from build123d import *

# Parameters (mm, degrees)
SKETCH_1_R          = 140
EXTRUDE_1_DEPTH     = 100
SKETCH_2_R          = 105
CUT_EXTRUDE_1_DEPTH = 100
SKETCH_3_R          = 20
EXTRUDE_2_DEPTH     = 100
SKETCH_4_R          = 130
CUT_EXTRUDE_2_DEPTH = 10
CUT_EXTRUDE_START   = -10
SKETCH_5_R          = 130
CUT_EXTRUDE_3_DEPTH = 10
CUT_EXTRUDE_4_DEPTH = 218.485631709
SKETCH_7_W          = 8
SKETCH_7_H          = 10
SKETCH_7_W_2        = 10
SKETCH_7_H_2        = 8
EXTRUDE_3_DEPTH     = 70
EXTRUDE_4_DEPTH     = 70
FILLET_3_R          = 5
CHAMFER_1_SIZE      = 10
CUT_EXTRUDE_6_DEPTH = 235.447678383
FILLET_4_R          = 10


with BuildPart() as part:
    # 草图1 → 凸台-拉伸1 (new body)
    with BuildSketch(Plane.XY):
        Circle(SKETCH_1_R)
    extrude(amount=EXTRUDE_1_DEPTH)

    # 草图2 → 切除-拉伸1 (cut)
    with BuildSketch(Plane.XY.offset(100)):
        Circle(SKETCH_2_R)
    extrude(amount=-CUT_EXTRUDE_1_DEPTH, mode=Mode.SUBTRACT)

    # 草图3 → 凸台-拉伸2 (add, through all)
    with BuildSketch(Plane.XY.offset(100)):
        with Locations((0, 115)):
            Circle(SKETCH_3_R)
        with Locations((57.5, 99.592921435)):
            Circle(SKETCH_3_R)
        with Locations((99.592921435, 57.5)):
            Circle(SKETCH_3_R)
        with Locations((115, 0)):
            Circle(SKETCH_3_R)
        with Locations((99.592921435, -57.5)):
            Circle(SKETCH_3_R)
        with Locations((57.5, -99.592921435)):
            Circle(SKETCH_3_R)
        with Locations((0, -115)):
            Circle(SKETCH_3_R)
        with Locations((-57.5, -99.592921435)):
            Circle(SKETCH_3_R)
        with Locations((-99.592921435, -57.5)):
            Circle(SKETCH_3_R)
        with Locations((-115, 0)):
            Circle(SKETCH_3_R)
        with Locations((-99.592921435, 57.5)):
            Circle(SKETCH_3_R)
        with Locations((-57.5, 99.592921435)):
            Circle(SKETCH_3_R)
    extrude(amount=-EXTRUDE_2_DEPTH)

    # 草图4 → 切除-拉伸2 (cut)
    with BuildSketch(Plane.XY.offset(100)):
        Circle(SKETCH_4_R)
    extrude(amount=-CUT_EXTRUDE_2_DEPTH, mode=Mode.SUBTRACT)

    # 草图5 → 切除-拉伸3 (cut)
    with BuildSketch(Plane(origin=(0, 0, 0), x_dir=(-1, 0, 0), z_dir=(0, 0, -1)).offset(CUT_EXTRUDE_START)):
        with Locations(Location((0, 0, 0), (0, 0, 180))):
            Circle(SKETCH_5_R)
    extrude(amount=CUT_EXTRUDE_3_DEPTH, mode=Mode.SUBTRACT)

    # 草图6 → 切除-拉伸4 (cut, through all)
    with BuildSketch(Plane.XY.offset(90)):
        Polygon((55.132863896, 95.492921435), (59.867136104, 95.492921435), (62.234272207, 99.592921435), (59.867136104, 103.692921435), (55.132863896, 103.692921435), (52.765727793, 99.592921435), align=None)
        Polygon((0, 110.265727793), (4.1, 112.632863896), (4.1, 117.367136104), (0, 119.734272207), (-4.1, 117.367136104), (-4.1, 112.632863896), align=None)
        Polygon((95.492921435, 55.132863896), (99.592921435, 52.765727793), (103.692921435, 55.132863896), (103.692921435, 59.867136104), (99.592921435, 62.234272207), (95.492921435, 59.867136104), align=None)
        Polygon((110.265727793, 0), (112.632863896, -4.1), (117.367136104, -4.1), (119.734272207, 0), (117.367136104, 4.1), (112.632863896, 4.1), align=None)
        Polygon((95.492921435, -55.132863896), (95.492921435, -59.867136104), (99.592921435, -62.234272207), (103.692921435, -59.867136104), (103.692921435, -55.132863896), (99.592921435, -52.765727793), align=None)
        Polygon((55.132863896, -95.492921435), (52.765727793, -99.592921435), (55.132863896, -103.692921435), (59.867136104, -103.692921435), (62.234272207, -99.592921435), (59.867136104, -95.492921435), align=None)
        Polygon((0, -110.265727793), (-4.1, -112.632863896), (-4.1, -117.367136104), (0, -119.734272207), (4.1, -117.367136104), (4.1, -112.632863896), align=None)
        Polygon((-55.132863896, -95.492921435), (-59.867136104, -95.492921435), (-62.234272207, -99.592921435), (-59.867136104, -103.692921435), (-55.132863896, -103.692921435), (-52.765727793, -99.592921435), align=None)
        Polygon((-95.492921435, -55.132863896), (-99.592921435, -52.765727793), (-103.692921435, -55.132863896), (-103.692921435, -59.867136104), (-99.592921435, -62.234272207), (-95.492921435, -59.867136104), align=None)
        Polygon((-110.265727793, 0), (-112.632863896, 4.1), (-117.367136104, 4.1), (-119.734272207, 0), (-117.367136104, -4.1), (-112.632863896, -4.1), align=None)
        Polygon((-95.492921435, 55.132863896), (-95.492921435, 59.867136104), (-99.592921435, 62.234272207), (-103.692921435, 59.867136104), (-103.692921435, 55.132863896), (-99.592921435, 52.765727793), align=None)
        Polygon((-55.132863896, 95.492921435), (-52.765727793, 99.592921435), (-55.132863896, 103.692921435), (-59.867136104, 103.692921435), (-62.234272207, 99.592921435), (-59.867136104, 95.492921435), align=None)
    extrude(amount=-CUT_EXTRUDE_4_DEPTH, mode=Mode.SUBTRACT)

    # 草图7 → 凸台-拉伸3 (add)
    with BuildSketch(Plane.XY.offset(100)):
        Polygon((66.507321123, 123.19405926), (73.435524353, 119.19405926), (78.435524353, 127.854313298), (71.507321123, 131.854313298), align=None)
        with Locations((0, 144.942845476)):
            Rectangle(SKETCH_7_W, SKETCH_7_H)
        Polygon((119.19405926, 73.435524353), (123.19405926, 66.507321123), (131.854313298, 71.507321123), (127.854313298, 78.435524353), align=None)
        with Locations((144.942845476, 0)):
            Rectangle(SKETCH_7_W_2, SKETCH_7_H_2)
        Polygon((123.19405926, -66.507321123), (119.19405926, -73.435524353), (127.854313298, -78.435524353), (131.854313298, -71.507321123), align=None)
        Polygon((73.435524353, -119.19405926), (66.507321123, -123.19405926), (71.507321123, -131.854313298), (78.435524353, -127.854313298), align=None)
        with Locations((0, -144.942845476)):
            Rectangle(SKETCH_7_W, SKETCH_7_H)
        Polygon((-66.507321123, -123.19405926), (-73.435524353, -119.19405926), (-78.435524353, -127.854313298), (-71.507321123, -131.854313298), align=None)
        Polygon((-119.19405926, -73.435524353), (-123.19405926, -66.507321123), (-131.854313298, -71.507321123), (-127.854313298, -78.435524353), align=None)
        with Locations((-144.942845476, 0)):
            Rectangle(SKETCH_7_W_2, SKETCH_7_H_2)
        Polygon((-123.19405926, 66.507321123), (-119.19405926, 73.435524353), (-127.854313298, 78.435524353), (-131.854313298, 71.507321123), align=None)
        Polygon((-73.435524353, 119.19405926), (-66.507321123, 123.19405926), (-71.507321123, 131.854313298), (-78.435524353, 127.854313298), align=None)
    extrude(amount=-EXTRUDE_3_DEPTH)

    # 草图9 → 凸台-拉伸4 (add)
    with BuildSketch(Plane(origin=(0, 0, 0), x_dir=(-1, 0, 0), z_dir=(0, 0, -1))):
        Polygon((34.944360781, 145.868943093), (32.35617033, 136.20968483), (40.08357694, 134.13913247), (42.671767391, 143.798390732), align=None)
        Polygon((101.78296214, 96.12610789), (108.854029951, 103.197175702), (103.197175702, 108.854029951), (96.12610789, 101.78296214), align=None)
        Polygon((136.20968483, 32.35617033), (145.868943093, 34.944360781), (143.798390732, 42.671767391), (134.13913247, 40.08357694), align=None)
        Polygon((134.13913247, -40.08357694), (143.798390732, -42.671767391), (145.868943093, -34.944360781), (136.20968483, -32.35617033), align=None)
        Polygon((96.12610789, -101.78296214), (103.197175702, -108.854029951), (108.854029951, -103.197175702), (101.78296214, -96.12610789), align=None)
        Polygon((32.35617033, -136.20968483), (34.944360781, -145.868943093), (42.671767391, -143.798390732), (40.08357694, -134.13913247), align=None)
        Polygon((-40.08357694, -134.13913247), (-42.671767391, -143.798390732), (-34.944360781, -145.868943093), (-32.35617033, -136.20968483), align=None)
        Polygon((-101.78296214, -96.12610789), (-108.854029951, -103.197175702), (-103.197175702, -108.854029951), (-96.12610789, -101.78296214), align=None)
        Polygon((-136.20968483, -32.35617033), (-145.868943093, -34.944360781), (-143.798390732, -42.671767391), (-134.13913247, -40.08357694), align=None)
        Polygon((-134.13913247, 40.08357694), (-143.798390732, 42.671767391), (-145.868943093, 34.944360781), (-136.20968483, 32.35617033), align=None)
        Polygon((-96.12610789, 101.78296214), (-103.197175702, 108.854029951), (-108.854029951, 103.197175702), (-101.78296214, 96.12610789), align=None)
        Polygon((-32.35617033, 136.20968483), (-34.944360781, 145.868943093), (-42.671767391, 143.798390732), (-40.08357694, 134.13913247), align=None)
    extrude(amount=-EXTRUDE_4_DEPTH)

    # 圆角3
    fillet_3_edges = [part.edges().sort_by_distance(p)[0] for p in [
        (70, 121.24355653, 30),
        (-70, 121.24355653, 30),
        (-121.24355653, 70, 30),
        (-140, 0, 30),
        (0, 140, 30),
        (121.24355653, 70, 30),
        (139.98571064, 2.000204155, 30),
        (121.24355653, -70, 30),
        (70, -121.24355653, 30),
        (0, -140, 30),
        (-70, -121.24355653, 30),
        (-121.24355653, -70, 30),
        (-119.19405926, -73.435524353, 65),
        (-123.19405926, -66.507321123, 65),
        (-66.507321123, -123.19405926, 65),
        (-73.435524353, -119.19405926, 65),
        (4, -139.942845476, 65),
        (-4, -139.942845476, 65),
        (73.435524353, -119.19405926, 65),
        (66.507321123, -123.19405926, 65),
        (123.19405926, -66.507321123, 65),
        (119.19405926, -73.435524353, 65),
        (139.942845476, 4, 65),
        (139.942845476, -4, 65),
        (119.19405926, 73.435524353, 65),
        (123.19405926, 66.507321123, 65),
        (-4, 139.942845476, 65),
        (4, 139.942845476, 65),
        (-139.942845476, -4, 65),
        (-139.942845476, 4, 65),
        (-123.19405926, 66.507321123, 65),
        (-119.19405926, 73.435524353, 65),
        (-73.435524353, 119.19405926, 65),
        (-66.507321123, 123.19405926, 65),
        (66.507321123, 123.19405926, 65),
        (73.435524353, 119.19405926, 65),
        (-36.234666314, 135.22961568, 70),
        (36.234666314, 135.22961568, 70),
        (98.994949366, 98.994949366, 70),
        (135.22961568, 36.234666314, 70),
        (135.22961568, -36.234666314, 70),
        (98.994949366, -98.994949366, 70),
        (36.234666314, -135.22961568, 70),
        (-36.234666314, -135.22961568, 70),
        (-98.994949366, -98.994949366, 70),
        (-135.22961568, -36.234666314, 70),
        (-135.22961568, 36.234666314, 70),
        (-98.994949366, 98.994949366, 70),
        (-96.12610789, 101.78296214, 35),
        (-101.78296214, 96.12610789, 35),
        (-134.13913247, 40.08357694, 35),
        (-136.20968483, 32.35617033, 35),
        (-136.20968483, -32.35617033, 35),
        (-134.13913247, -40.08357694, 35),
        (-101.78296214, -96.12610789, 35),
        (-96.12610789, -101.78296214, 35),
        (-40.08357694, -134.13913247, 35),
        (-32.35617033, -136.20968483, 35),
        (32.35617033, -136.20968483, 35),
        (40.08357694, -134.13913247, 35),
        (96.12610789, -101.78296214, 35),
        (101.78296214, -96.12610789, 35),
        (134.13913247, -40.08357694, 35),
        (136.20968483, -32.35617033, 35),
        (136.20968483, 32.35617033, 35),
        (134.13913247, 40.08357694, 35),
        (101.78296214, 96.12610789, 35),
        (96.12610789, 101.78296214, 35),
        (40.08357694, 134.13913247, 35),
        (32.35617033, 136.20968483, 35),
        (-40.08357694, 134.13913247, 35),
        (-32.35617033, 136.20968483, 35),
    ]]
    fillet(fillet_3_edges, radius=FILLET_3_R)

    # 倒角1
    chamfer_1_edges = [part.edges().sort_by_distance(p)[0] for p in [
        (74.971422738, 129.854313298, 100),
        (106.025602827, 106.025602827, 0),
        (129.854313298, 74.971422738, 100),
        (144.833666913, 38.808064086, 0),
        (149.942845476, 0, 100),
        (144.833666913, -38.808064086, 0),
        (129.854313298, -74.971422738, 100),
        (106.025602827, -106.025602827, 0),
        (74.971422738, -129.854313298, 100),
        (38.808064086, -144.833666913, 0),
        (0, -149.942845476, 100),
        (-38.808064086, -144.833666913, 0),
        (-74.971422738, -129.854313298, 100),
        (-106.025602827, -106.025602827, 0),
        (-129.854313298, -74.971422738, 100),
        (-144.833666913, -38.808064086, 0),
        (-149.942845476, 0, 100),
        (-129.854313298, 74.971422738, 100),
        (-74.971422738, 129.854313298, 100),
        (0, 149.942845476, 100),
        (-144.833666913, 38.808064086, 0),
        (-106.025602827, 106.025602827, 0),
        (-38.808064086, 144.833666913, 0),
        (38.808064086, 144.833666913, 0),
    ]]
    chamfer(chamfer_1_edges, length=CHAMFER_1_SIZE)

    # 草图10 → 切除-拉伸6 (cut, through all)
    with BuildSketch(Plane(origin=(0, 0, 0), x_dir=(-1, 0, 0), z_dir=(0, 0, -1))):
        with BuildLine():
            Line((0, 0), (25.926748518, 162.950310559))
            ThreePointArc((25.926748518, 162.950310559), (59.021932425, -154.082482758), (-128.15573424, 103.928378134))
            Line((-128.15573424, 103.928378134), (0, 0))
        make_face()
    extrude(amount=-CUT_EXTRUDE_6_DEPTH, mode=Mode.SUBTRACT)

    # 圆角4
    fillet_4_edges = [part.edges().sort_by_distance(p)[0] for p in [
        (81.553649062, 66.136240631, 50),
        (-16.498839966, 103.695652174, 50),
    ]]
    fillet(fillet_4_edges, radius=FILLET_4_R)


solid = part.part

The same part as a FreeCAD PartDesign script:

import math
import FreeCAD as App
import Part
import Sketcher
Q = App.Units.Quantity


def edges_at(feature, points):
    """Names of the edges that pass closest to the given points."""
    edges = feature.Shape.Edges
    near = lambda p: min(range(len(edges)), key=lambda i: edges[i].distToShape(Part.Vertex(*p))[0])
    return sorted({f"Edge{near(p) + 1}" for p in points})


def add_polygon(sketch, points):
    """Adds a closed chain of lines whose ends are joined by coincident constraints."""
    first, n = sketch.GeometryCount, len(points)
    for a, b in zip(points, points[1:] + points[:1]):
        sketch.addGeometry(Part.LineSegment(App.Vector(*a, 0), App.Vector(*b, 0)), False)
    for i in range(n):
        sketch.addConstraint(Sketcher.Constraint("Coincident", first + i, 2, first + (i + 1) % n, 1))

doc = App.newDocument("Part")
body = doc.addObject("PartDesign::Body", "Body")

sketch1 = body.newObject("Sketcher::SketchObject", "Sketch")
sketch1.AttachmentSupport = (doc.getObject("XY_Plane"), [""])
sketch1.MapMode = "FlatFace"
sketch1.addGeometry(Part.Circle(App.Vector(0, 0, 0), App.Vector(0, 0, 1), 140), False)
sketch1.addConstraint([
    Sketcher.Constraint("Coincident", 0, 3, -1, 1),
    Sketcher.Constraint("Diameter", 0, Q("280 mm")),
])
pad1 = body.newObject("PartDesign::Pad", "Pad")
pad1.Profile = sketch1
pad1.Length = 100

sketch2 = body.newObject("Sketcher::SketchObject", "Sketch001")
sketch2.AttachmentSupport = (doc.getObject("XY_Plane"), [""])
sketch2.MapMode = "FlatFace"
sketch2.AttachmentOffset = App.Placement(App.Vector(0, 0, 100), App.Rotation())
sketch2.addGeometry(Part.Circle(App.Vector(0, 0, 0), App.Vector(0, 0, 1), 105), False)
sketch2.addConstraint([
    Sketcher.Constraint("Coincident", 0, 3, -1, 1),
    Sketcher.Constraint("Diameter", 0, Q("210 mm")),
])
pocket1 = body.newObject("PartDesign::Pocket", "Pocket")
pocket1.Profile = sketch2
pocket1.Length = 100

sketch3 = body.newObject("Sketcher::SketchObject", "Sketch002")
sketch3.AttachmentSupport = (doc.getObject("XY_Plane"), [""])
sketch3.MapMode = "FlatFace"
sketch3.AttachmentOffset = App.Placement(App.Vector(0, 0, 100), App.Rotation())
sketch3.addGeometry([
    Part.Circle(App.Vector(0, 115, 0), App.Vector(0, 0, 1), 20),
    Part.Circle(App.Vector(57.5, 99.592921, 0), App.Vector(0, 0, 1), 20),
    Part.Circle(App.Vector(99.592921, 57.5, 0), App.Vector(0, 0, 1), 20),
    Part.Circle(App.Vector(115, 0, 0), App.Vector(0, 0, 1), 20),
    Part.Circle(App.Vector(99.592921, -57.5, 0), App.Vector(0, 0, 1), 20),
    Part.Circle(App.Vector(57.5, -99.592921, 0), App.Vector(0, 0, 1), 20),
    Part.Circle(App.Vector(0, -115, 0), App.Vector(0, 0, 1), 20),
    Part.Circle(App.Vector(-57.5, -99.592921, 0), App.Vector(0, 0, 1), 20),
    Part.Circle(App.Vector(-99.592921, -57.5, 0), App.Vector(0, 0, 1), 20),
    Part.Circle(App.Vector(-115, 0, 0), App.Vector(0, 0, 1), 20),
    Part.Circle(App.Vector(-99.592921, 57.5, 0), App.Vector(0, 0, 1), 20),
    Part.Circle(App.Vector(-57.5, 99.592921, 0), App.Vector(0, 0, 1), 20),
], False)
sketch3.addConstraint([
    Sketcher.Constraint("Equal", 0, 1),
    Sketcher.Constraint("Equal", 1, 2),
    Sketcher.Constraint("Equal", 2, 3),
    Sketcher.Constraint("Equal", 3, 4),
    Sketcher.Constraint("Equal", 4, 5),
    Sketcher.Constraint("Equal", 5, 6),
    Sketcher.Constraint("Equal", 6, 7),
    Sketcher.Constraint("Equal", 7, 8),
    Sketcher.Constraint("Equal", 8, 9),
    Sketcher.Constraint("Equal", 9, 10),
    Sketcher.Constraint("Equal", 10, 11),
    Sketcher.Constraint("Symmetric", 0, 3, 6, 3, -1, 1),
    Sketcher.Constraint("Symmetric", 1, 3, 7, 3, -1, 1),
    Sketcher.Constraint("Symmetric", 2, 3, 8, 3, -1, 1),
    Sketcher.Constraint("Symmetric", 3, 3, 9, 3, -1, 1),
    Sketcher.Constraint("Symmetric", 4, 3, 10, 3, -1, 1),
    Sketcher.Constraint("Symmetric", 5, 3, 11, 3, -1, 1),
    Sketcher.Constraint("Symmetric", 5, 3, 7, 3, -2),
    Sketcher.Constraint("Symmetric", 4, 3, 8, 3, -2),
    Sketcher.Constraint("PointOnObject", 0, 3, -2),
    Sketcher.Constraint("PointOnObject", 3, 3, -1),
    Sketcher.Constraint("Diameter", 0, Q("40 mm")),
    Sketcher.Constraint("DistanceY", -1, 1, 0, 3, Q("115 mm")),
    Sketcher.Constraint("DistanceX", -1, 1, 3, 3, Q("115 mm")),
    Sketcher.Constraint("DistanceY", 4, 3, 2, 3, Q("115 mm")),
    Sketcher.Constraint("DistanceX", 7, 3, 5, 3, Q("115 mm")),
    Sketcher.Constraint("DistanceY", -1, 1, 1, 3, Q("99.592921 mm")),
    Sketcher.Constraint("DistanceX", -1, 1, 2, 3, Q("99.592921 mm")),
])
pad2 = body.newObject("PartDesign::Pad", "Pad001")
pad2.Profile = sketch3
pad2.Length = 100
pad2.Reversed = True

sketch4 = body.newObject("Sketcher::SketchObject", "Sketch003")
sketch4.AttachmentSupport = (doc.getObject("XY_Plane"), [""])
sketch4.MapMode = "FlatFace"
sketch4.AttachmentOffset = App.Placement(App.Vector(0, 0, 100), App.Rotation())
sketch4.addGeometry(Part.Circle(App.Vector(0, 0, 0), App.Vector(0, 0, 1), 130), False)
sketch4.addConstraint([
    Sketcher.Constraint("Coincident", 0, 3, -1, 1),
    Sketcher.Constraint("Diameter", 0, Q("260 mm")),
])
pocket2 = body.newObject("PartDesign::Pocket", "Pocket001")
pocket2.Profile = sketch4
pocket2.Length = 10

sketch5 = body.newObject("Sketcher::SketchObject", "Sketch004")
sketch5.AttachmentSupport = (doc.getObject("XY_Plane"), [""])
sketch5.MapMode = "FlatFace"
sketch5.AttachmentOffset = App.Placement(App.Vector(0, 0, 10), App.Rotation())
sketch5.addGeometry(Part.Circle(App.Vector(0, 0, 0), App.Vector(0, 0, 1), 130), False)
sketch5.addConstraint([
    Sketcher.Constraint("Coincident", 0, 3, -1, 1),
    Sketcher.Constraint("Diameter", 0, Q("260 mm")),
])
pocket3 = body.newObject("PartDesign::Pocket", "Pocket002")
pocket3.Profile = sketch5
pocket3.Length = 10

sketch6 = body.newObject("Sketcher::SketchObject", "Sketch005")
sketch6.AttachmentSupport = (doc.getObject("XY_Plane"), [""])
sketch6.MapMode = "FlatFace"
sketch6.AttachmentOffset = App.Placement(App.Vector(0, 0, 90), App.Rotation())
add_polygon(sketch6, [(55.132864, 95.492921), (59.867136, 95.492921), (62.234272, 99.592921), (59.867136, 103.692921), (55.132864, 103.692921), (52.765728, 99.592921)])
add_polygon(sketch6, [(0, 110.265728), (4.1, 112.632864), (4.1, 117.367136), (0, 119.734272), (-4.1, 117.367136), (-4.1, 112.632864)])
add_polygon(sketch6, [(95.492921, 55.132864), (99.592921, 52.765728), (103.692921, 55.132864), (103.692921, 59.867136), (99.592921, 62.234272), (95.492921, 59.867136)])
add_polygon(sketch6, [(110.265728, 0), (112.632864, -4.1), (117.367136, -4.1), (119.734272, 0), (117.367136, 4.1), (112.632864, 4.1)])
add_polygon(sketch6, [(95.492921, -55.132864), (95.492921, -59.867136), (99.592921, -62.234272), (103.692921, -59.867136), (103.692921, -55.132864), (99.592921, -52.765728)])
add_polygon(sketch6, [(55.132864, -95.492921), (52.765728, -99.592921), (55.132864, -103.692921), (59.867136, -103.692921), (62.234272, -99.592921), (59.867136, -95.492921)])
add_polygon(sketch6, [(0, -110.265728), (-4.1, -112.632864), (-4.1, -117.367136), (0, -119.734272), (4.1, -117.367136), (4.1, -112.632864)])
add_polygon(sketch6, [(-55.132864, -95.492921), (-59.867136, -95.492921), (-62.234272, -99.592921), (-59.867136, -103.692921), (-55.132864, -103.692921), (-52.765728, -99.592921)])
add_polygon(sketch6, [(-95.492921, -55.132864), (-99.592921, -52.765728), (-103.692921, -55.132864), (-103.692921, -59.867136), (-99.592921, -62.234272), (-95.492921, -59.867136)])
add_polygon(sketch6, [(-110.265728, 0), (-112.632864, 4.1), (-117.367136, 4.1), (-119.734272, 0), (-117.367136, -4.1), (-112.632864, -4.1)])
add_polygon(sketch6, [(-95.492921, 55.132864), (-95.492921, 59.867136), (-99.592921, 62.234272), (-103.692921, 59.867136), (-103.692921, 55.132864), (-99.592921, 52.765728)])
add_polygon(sketch6, [(-55.132864, 95.492921), (-52.765728, 99.592921), (-55.132864, 103.692921), (-59.867136, 103.692921), (-62.234272, 99.592921), (-59.867136, 95.492921)])
sketch6.addConstraint([
    Sketcher.Constraint("Horizontal", 0),
    Sketcher.Constraint("Horizontal", 3),
    Sketcher.Constraint("Vertical", 7),
    Sketcher.Constraint("Vertical", 10),
    Sketcher.Constraint("Vertical", 14),
    Sketcher.Constraint("Vertical", 17),
    Sketcher.Constraint("Horizontal", 19),
    Sketcher.Constraint("Horizontal", 22),
    Sketcher.Constraint("Vertical", 24),
    Sketcher.Constraint("Vertical", 27),
    Sketcher.Constraint("Horizontal", 32),
    Sketcher.Constraint("Horizontal", 35),
    Sketcher.Constraint("Vertical", 37),
    Sketcher.Constraint("Vertical", 40),
    Sketcher.Constraint("Horizontal", 42),
    Sketcher.Constraint("Horizontal", 45),
    Sketcher.Constraint("Vertical", 50),
    Sketcher.Constraint("Vertical", 53),
    Sketcher.Constraint("Horizontal", 55),
    Sketcher.Constraint("Horizontal", 58),
    Sketcher.Constraint("Vertical", 60),
    Sketcher.Constraint("Vertical", 63),
    Sketcher.Constraint("Horizontal", 68),
    Sketcher.Constraint("Horizontal", 71),
    Sketcher.Constraint("Symmetric", 6, 2, 36, 2, -1, 1),
    Sketcher.Constraint("Symmetric", 8, 2, 38, 2, -1, 1),
    Sketcher.Constraint("Symmetric", 9, 2, 39, 2, -1, 1),
    Sketcher.Constraint("Symmetric", 11, 2, 41, 2, -1, 1),
    Sketcher.Constraint("Symmetric", 0, 2, 42, 2, -1, 1),
    Sketcher.Constraint("Symmetric", 1, 2, 43, 2, -1, 1),
    Sketcher.Constraint("Symmetric", 2, 2, 44, 2, -1, 1),
    Sketcher.Constraint("Symmetric", 4, 2, 46, 2, -1, 1),
    Sketcher.Constraint("Symmetric", 12, 2, 48, 2, -1, 1),
    Sketcher.Constraint("Symmetric", 13, 2, 49, 2, -1, 1),
    Sketcher.Constraint("Symmetric", 15, 2, 51, 2, -1, 1),
    Sketcher.Constraint("Symmetric", 16, 2, 52, 2, -1, 1),
    Sketcher.Constraint("Symmetric", 18, 2, 54, 2, -1, 1),
    Sketcher.Constraint("Symmetric", 20, 2, 56, 2, -1, 1),
    Sketcher.Constraint("Symmetric", 21, 2, 57, 2, -1, 1),
    Sketcher.Constraint("Symmetric", 23, 2, 59, 2, -1, 1),
    Sketcher.Constraint("Symmetric", 24, 2, 60, 2, -1, 1),
    Sketcher.Constraint("Symmetric", 25, 2, 61, 2, -1, 1),
    Sketcher.Constraint("Symmetric", 26, 2, 62, 2, -1, 1),
    Sketcher.Constraint("Symmetric", 28, 2, 64, 2, -1, 1),
    Sketcher.Constraint("Symmetric", 30, 2, 66, 2, -1, 1),
    Sketcher.Constraint("Symmetric", 31, 2, 67, 2, -1, 1),
    Sketcher.Constraint("Symmetric", 33, 2, 69, 2, -1, 1),
    Sketcher.Constraint("Symmetric", 34, 2, 70, 2, -1, 1),
    Sketcher.Constraint("Symmetric", 7, 2, 9, 2, -2),
    Sketcher.Constraint("Symmetric", 34, 2, 42, 2, -2),
    Sketcher.Constraint("Symmetric", 33, 2, 43, 2, -2),
    Sketcher.Constraint("Symmetric", 32, 2, 44, 2, -2),
    Sketcher.Constraint("Symmetric", 30, 2, 46, 2, -2),
    Sketcher.Constraint("Symmetric", 28, 2, 48, 2, -2),
    Sketcher.Constraint("Symmetric", 27, 2, 49, 2, -2),
    Sketcher.Constraint("Symmetric", 25, 2, 51, 2, -2),
    Sketcher.Constraint("Symmetric", 24, 2, 52, 2, -2),
    Sketcher.Constraint("Symmetric", 22, 2, 54, 2, -2),
    Sketcher.Constraint("PointOnObject", 8, 2, -2),
    Sketcher.Constraint("PointOnObject", 11, 2, -2),
    Sketcher.Constraint("PointOnObject", 20, 2, -1),
    Sketcher.Constraint("PointOnObject", 23, 2, -1),
    Sketcher.Constraint("Parallel", 1, 4),
    Sketcher.Constraint("Parallel", 2, 5),
    Sketcher.Constraint("Perpendicular", 5, 6),
    Sketcher.Constraint("Perpendicular", 4, 8),
    Sketcher.Constraint("Parallel", 6, 9),
    Sketcher.Constraint("Parallel", 8, 11),
    Sketcher.Constraint("Parallel", 11, 12),
    Sketcher.Constraint("Parallel", 9, 13),
    Sketcher.Constraint("Parallel", 12, 15),
    Sketcher.Constraint("Parallel", 13, 16),
    Sketcher.Constraint("Perpendicular", 16, 18),
    Sketcher.Constraint("Perpendicular", 15, 20),
    Sketcher.Constraint("Parallel", 18, 21),
    Sketcher.Constraint("Perpendicular", 21, 26),
    Sketcher.Constraint("Parallel", 26, 29),
    Sketcher.Constraint("Perpendicular", 28, 30),
    Sketcher.Constraint("Perpendicular", 29, 31),
    Sketcher.Constraint("Perpendicular", 33, 38),
    Sketcher.Constraint("Parallel", 38, 41),
    Sketcher.Constraint("Parallel", 43, 46),
    Sketcher.Constraint("Parallel", 44, 47),
    Sketcher.Constraint("Perpendicular", 46, 48),
    Sketcher.Constraint("Parallel", 48, 51),
    Sketcher.Constraint("Perpendicular", 51, 56),
    Sketcher.Constraint("Parallel", 56, 59),
    Sketcher.Constraint("Parallel", 61, 64),
    Sketcher.Constraint("Parallel", 62, 65),
    Sketcher.Constraint("Perpendicular", 64, 66),
    Sketcher.Constraint("Parallel", 66, 69),
    Sketcher.Constraint("Horizontal", 1, 2, 4, 2),
    Sketcher.Constraint("Horizontal", 14, 2, 16, 2),
    Sketcher.Constraint("Horizontal", 13, 2, 17, 2),
    Sketcher.Constraint("Vertical", 0, 2, 2, 2),
    Sketcher.Constraint("Equal", 3, 19),
    Sketcher.Constraint("Equal", 71, 7),
    Sketcher.Constraint("Equal", 10, 14),
    Sketcher.Constraint("Equal", 5, 6),
    Sketcher.Constraint("Equal", 11, 12),
    Sketcher.Constraint("Equal", 16, 18),
    Sketcher.Constraint("Angle", 1, Q("60 deg")),
    Sketcher.Constraint("DistanceX", -1, 1, 6, 2, Q("4.1 mm")),
    Sketcher.Constraint("DistanceX", 0, 1, 0, 2, Q("4.734272 mm")),
    Sketcher.Constraint("DistanceY", -1, 1, 0, 2, Q("95.492921 mm")),
    Sketcher.Constraint("DistanceX", -1, 1, 12, 2, Q("99.592921 mm")),
    Sketcher.Constraint("DistanceX", -1, 1, 0, 2, Q("59.867136 mm")),
    Sketcher.Constraint("DistanceY", -1, 1, 6, 2, Q("112.632864 mm")),
    Sketcher.Constraint("DistanceY", -1, 1, 12, 2, Q("52.765728 mm")),
    Sketcher.Constraint("DistanceX", -1, 1, 18, 2, Q("112.632864 mm")),
])
pocket4 = body.newObject("PartDesign::Pocket", "Pocket003")
pocket4.Profile = sketch6
pocket4.Type = "ThroughAll"

sketch7 = body.newObject("Sketcher::SketchObject", "Sketch006")
sketch7.AttachmentSupport = (doc.getObject("XY_Plane"), [""])
sketch7.MapMode = "FlatFace"
sketch7.AttachmentOffset = App.Placement(App.Vector(0, 0, 100), App.Rotation())
add_polygon(sketch7, [(66.507321, 123.194059), (73.435524, 119.194059), (78.435524, 127.854313), (71.507321, 131.854313)])
add_polygon(sketch7, [(-4, 149.942845), (-4, 139.942845), (4, 139.942845), (4, 149.942845)])
add_polygon(sketch7, [(119.194059, 73.435524), (123.194059, 66.507321), (131.854313, 71.507321), (127.854313, 78.435524)])
add_polygon(sketch7, [(139.942845, 4), (139.942845, -4), (149.942845, -4), (149.942845, 4)])
add_polygon(sketch7, [(123.194059, -66.507321), (119.194059, -73.435524), (127.854313, -78.435524), (131.854313, -71.507321)])
add_polygon(sketch7, [(73.435524, -119.194059), (66.507321, -123.194059), (71.507321, -131.854313), (78.435524, -127.854313)])
add_polygon(sketch7, [(-4, -139.942845), (-4, -149.942845), (4, -149.942845), (4, -139.942845)])
add_polygon(sketch7, [(-66.507321, -123.194059), (-73.435524, -119.194059), (-78.435524, -127.854313), (-71.507321, -131.854313)])
add_polygon(sketch7, [(-119.194059, -73.435524), (-123.194059, -66.507321), (-131.854313, -71.507321), (-127.854313, -78.435524)])
add_polygon(sketch7, [(-149.942845, 4), (-149.942845, -4), (-139.942845, -4), (-139.942845, 4)])
add_polygon(sketch7, [(-123.194059, 66.507321), (-119.194059, 73.435524), (-127.854313, 78.435524), (-131.854313, 71.507321)])
add_polygon(sketch7, [(-73.435524, 119.194059), (-66.507321, 123.194059), (-71.507321, 131.854313), (-78.435524, 127.854313)])
sketch7.addConstraint([
    Sketcher.Constraint("Vertical", 4),
    Sketcher.Constraint("Horizontal", 5),
    Sketcher.Constraint("Vertical", 6),
    Sketcher.Constraint("Horizontal", 7),
    Sketcher.Constraint("Vertical", 12),
    Sketcher.Constraint("Horizontal", 13),
    Sketcher.Constraint("Vertical", 14),
    Sketcher.Constraint("Horizontal", 15),
    Sketcher.Constraint("Vertical", 24),
    Sketcher.Constraint("Horizontal", 25),
    Sketcher.Constraint("Vertical", 26),
    Sketcher.Constraint("Horizontal", 27),
    Sketcher.Constraint("Vertical", 36),
    Sketcher.Constraint("Horizontal", 37),
    Sketcher.Constraint("Vertical", 38),
    Sketcher.Constraint("Horizontal", 39),
    Sketcher.Constraint("Symmetric", 6, 2, 24, 2, -1, 1),
    Sketcher.Constraint("Symmetric", 4, 2, 26, 2, -1, 1),
    Sketcher.Constraint("Symmetric", 0, 2, 28, 2, -1, 1),
    Sketcher.Constraint("Symmetric", 1, 2, 29, 2, -1, 1),
    Sketcher.Constraint("Symmetric", 2, 2, 30, 2, -1, 1),
    Sketcher.Constraint("Symmetric", 3, 2, 31, 2, -1, 1),
    Sketcher.Constraint("Symmetric", 8, 2, 32, 2, -1, 1),
    Sketcher.Constraint("Symmetric", 9, 2, 33, 2, -1, 1),
    Sketcher.Constraint("Symmetric", 10, 2, 34, 2, -1, 1),
    Sketcher.Constraint("Symmetric", 11, 2, 35, 2, -1, 1),
    Sketcher.Constraint("Symmetric", 14, 2, 36, 2, -1, 1),
    Sketcher.Constraint("Symmetric", 12, 2, 38, 2, -1, 1),
    Sketcher.Constraint("Symmetric", 16, 2, 40, 2, -1, 1),
    Sketcher.Constraint("Symmetric", 17, 2, 41, 2, -1, 1),
    Sketcher.Constraint("Symmetric", 18, 2, 42, 2, -1, 1),
    Sketcher.Constraint("Symmetric", 19, 2, 43, 2, -1, 1),
    Sketcher.Constraint("Symmetric", 20, 2, 44, 2, -1, 1),
    Sketcher.Constraint("Symmetric", 21, 2, 45, 2, -1, 1),
    Sketcher.Constraint("Symmetric", 22, 2, 46, 2, -1, 1),
    Sketcher.Constraint("Symmetric", 23, 2, 47, 2, -1, 1),
    Sketcher.Constraint("Symmetric", 23, 2, 28, 2, -2),
    Sketcher.Constraint("Symmetric", 22, 2, 29, 2, -2),
    Sketcher.Constraint("Symmetric", 21, 2, 30, 2, -2),
    Sketcher.Constraint("Symmetric", 20, 2, 31, 2, -2),
    Sketcher.Constraint("Symmetric", 19, 2, 32, 2, -2),
    Sketcher.Constraint("Symmetric", 18, 2, 33, 2, -2),
    Sketcher.Constraint("Symmetric", 17, 2, 34, 2, -2),
    Sketcher.Constraint("Symmetric", 16, 2, 35, 2, -2),
    Sketcher.Constraint("Perpendicular", 0, 1),
    Sketcher.Constraint("Perpendicular", 1, 2),
    Sketcher.Constraint("Perpendicular", 2, 3),
    Sketcher.Constraint("Perpendicular", 8, 9),
    Sketcher.Constraint("Perpendicular", 9, 10),
    Sketcher.Constraint("Perpendicular", 10, 11),
    Sketcher.Constraint("Parallel", 3, 16),
    Sketcher.Constraint("Horizontal", 13, 2, 36, 2),
    Sketcher.Constraint("Vertical", 7, 2, 24, 2),
    Sketcher.Constraint("Equal", 39, 4),
    Sketcher.Constraint("Equal", 27, 12),
    Sketcher.Constraint("Equal", 2, 8),
    Sketcher.Constraint("Equal", 3, 9),
    Sketcher.Constraint("DistanceX", 5, 1, 5, 2, Q("8 mm")),
    Sketcher.Constraint("DistanceX", 13, 1, 13, 2, Q("10 mm")),
    Sketcher.Constraint("Angle", 0, Q("-30 deg")),
    Sketcher.Constraint("Distance", 0, Q("8 mm")),
    Sketcher.Constraint("Distance", 1, Q("10 mm")),
    Sketcher.Constraint("DistanceY", -1, 1, 0, 2, Q("119.194059 mm")),
    Sketcher.Constraint("DistanceX", -1, 1, 2, 2, Q("71.507321 mm")),
    Sketcher.Constraint("DistanceX", -1, 1, 8, 2, Q("123.194059 mm")),
    Sketcher.Constraint("DistanceY", -1, 1, 8, 2, Q("66.507321 mm")),
    Sketcher.Constraint("DistanceX", 0, 2, 12, 2, Q("66.507321 mm")),
    Sketcher.Constraint("DistanceY", 24, 2, 16, 2, Q("76.507321 mm")),
])
pad3 = body.newObject("PartDesign::Pad", "Pad002")
pad3.Profile = sketch7
pad3.Length = 70
pad3.Reversed = True

sketch8 = body.newObject("Sketcher::SketchObject", "Sketch007")
sketch8.AttachmentSupport = (doc.getObject("XY_Plane"), [""])
sketch8.MapMode = "FlatFace"
add_polygon(sketch8, [(-34.944361, 145.868943), (-32.35617, 136.209685), (-40.083577, 134.139132), (-42.671767, 143.798391)])
add_polygon(sketch8, [(-101.782962, 96.126108), (-108.85403, 103.197176), (-103.197176, 108.85403), (-96.126108, 101.782962)])
add_polygon(sketch8, [(-136.209685, 32.35617), (-145.868943, 34.944361), (-143.798391, 42.671767), (-134.139132, 40.083577)])
add_polygon(sketch8, [(-134.139132, -40.083577), (-143.798391, -42.671767), (-145.868943, -34.944361), (-136.209685, -32.35617)])
add_polygon(sketch8, [(-96.126108, -101.782962), (-103.197176, -108.85403), (-108.85403, -103.197176), (-101.782962, -96.126108)])
add_polygon(sketch8, [(-32.35617, -136.209685), (-34.944361, -145.868943), (-42.671767, -143.798391), (-40.083577, -134.139132)])
add_polygon(sketch8, [(40.083577, -134.139132), (42.671767, -143.798391), (34.944361, -145.868943), (32.35617, -136.209685)])
add_polygon(sketch8, [(101.782962, -96.126108), (108.85403, -103.197176), (103.197176, -108.85403), (96.126108, -101.782962)])
add_polygon(sketch8, [(136.209685, -32.35617), (145.868943, -34.944361), (143.798391, -42.671767), (134.139132, -40.083577)])
add_polygon(sketch8, [(134.139132, 40.083577), (143.798391, 42.671767), (145.868943, 34.944361), (136.209685, 32.35617)])
add_polygon(sketch8, [(96.126108, 101.782962), (103.197176, 108.85403), (108.85403, 103.197176), (101.782962, 96.126108)])
add_polygon(sketch8, [(32.35617, 136.209685), (34.944361, 145.868943), (42.671767, 143.798391), (40.083577, 134.139132)])
sketch8.addConstraint([
    Sketcher.Constraint("Symmetric", 2, 2, 24, 2, -1, 1),
    Sketcher.Constraint("Symmetric", 3, 2, 25, 2, -1, 1),
    Sketcher.Constraint("Symmetric", 0, 2, 26, 2, -1, 1),
    Sketcher.Constraint("Symmetric", 1, 2, 27, 2, -1, 1),
    Sketcher.Constraint("Symmetric", 4, 2, 28, 2, -1, 1),
    Sketcher.Constraint("Symmetric", 5, 2, 29, 2, -1, 1),
    Sketcher.Constraint("Symmetric", 6, 2, 30, 2, -1, 1),
    Sketcher.Constraint("Symmetric", 7, 2, 31, 2, -1, 1),
    Sketcher.Constraint("Symmetric", 8, 2, 32, 2, -1, 1),
    Sketcher.Constraint("Symmetric", 9, 2, 33, 2, -1, 1),
    Sketcher.Constraint("Symmetric", 10, 2, 34, 2, -1, 1),
    Sketcher.Constraint("Symmetric", 11, 2, 35, 2, -1, 1),
    Sketcher.Constraint("Symmetric", 12, 2, 36, 2, -1, 1),
    Sketcher.Constraint("Symmetric", 13, 2, 37, 2, -1, 1),
    Sketcher.Constraint("Symmetric", 14, 2, 38, 2, -1, 1),
    Sketcher.Constraint("Symmetric", 15, 2, 39, 2, -1, 1),
    Sketcher.Constraint("Symmetric", 16, 2, 40, 2, -1, 1),
    Sketcher.Constraint("Symmetric", 17, 2, 41, 2, -1, 1),
    Sketcher.Constraint("Symmetric", 18, 2, 42, 2, -1, 1),
    Sketcher.Constraint("Symmetric", 19, 2, 43, 2, -1, 1),
    Sketcher.Constraint("Symmetric", 20, 2, 44, 2, -1, 1),
    Sketcher.Constraint("Symmetric", 21, 2, 45, 2, -1, 1),
    Sketcher.Constraint("Symmetric", 22, 2, 46, 2, -1, 1),
    Sketcher.Constraint("Symmetric", 23, 2, 47, 2, -1, 1),
    Sketcher.Constraint("Symmetric", 21, 2, 24, 2, -2),
    Sketcher.Constraint("Symmetric", 20, 2, 25, 2, -2),
    Sketcher.Constraint("Symmetric", 23, 2, 26, 2, -2),
    Sketcher.Constraint("Symmetric", 22, 2, 27, 2, -2),
    Sketcher.Constraint("Symmetric", 17, 2, 28, 2, -2),
    Sketcher.Constraint("Symmetric", 16, 2, 29, 2, -2),
    Sketcher.Constraint("Symmetric", 19, 2, 30, 2, -2),
    Sketcher.Constraint("Symmetric", 18, 2, 31, 2, -2),
    Sketcher.Constraint("Symmetric", 13, 2, 32, 2, -2),
    Sketcher.Constraint("Symmetric", 12, 2, 33, 2, -2),
    Sketcher.Constraint("Symmetric", 15, 2, 34, 2, -2),
    Sketcher.Constraint("Symmetric", 14, 2, 35, 2, -2),
    Sketcher.Constraint("Perpendicular", 0, 1),
    Sketcher.Constraint("Perpendicular", 1, 2),
    Sketcher.Constraint("Perpendicular", 2, 3),
    Sketcher.Constraint("Perpendicular", 4, 5),
    Sketcher.Constraint("Perpendicular", 5, 6),
    Sketcher.Constraint("Perpendicular", 6, 7),
    Sketcher.Constraint("Perpendicular", 8, 9),
    Sketcher.Constraint("Perpendicular", 9, 10),
    Sketcher.Constraint("Perpendicular", 10, 11),
    Sketcher.Constraint("Parallel", 3, 12),
    Sketcher.Constraint("Parallel", 7, 16),
    Sketcher.Constraint("Equal", 2, 4),
    Sketcher.Constraint("Equal", 3, 5),
    Sketcher.Constraint("Equal", 6, 8),
    Sketcher.Constraint("Equal", 7, 9),
    Sketcher.Constraint("Angle", 0, Q("-75 deg")),
    Sketcher.Constraint("Distance", 0, Q("10 mm")),
    Sketcher.Constraint("Distance", 1, Q("8 mm")),
    Sketcher.Constraint("DistanceX", 5, 2, 1, 2, Q("63.113599 mm")),
    Sketcher.Constraint("DistanceY", 8, 2, 6, 2, Q("66.838601 mm")),
    Sketcher.Constraint("DistanceY", 16, 2, 11, 2, Q("141.2102 mm")),
    Sketcher.Constraint("DistanceX", 23, 2, 28, 2, Q("141.2102 mm")),
    Sketcher.Constraint("DistanceY", -1, 1, 2, 2, Q("143.798391 mm")),
    Sketcher.Constraint("DistanceX", 9, 2, -1, 1, Q("143.798391 mm")),
])
pad4 = body.newObject("PartDesign::Pad", "Pad003")
pad4.Profile = sketch8
pad4.Length = 70
doc.recompute()

fillet = body.newObject("PartDesign::Fillet", "Fillet")
fillet.Base = (pad4, edges_at(pad4, [
    (70, 121.244, 30),
    (-70, 121.244, 30),
    (-121.244, 70, 30),
    (-140, 0, 30),
    (0, 140, 30),
    (121.244, 70, 30),
    (139.986, 2, 30),
    (121.244, -70, 30),
    (70, -121.244, 30),
    (0, -140, 30),
    (-70, -121.244, 30),
    (-121.244, -70, 30),
    (-119.194, -73.436, 65),
    (-123.194, -66.507, 65),
    (-66.507, -123.194, 65),
    (-73.436, -119.194, 65),
    (4, -139.943, 65),
    (-4, -139.943, 65),
    (73.436, -119.194, 65),
    (66.507, -123.194, 65),
    (123.194, -66.507, 65),
    (119.194, -73.436, 65),
    (139.943, 4, 65),
    (139.943, -4, 65),
    (119.194, 73.436, 65),
    (123.194, 66.507, 65),
    (-4, 139.943, 65),
    (4, 139.943, 65),
    (-139.943, -4, 65),
    (-139.943, 4, 65),
    (-123.194, 66.507, 65),
    (-119.194, 73.436, 65),
    (-73.436, 119.194, 65),
    (-66.507, 123.194, 65),
    (66.507, 123.194, 65),
    (73.436, 119.194, 65),
    (-36.235, 135.23, 70),
    (36.235, 135.23, 70),
    (98.995, 98.995, 70),
    (135.23, 36.235, 70),
    (135.23, -36.235, 70),
    (98.995, -98.995, 70),
    (36.235, -135.23, 70),
    (-36.235, -135.23, 70),
    (-98.995, -98.995, 70),
    (-135.23, -36.235, 70),
    (-135.23, 36.235, 70),
    (-98.995, 98.995, 70),
    (-96.126, 101.783, 35),
    (-101.783, 96.126, 35),
    (-134.139, 40.084, 35),
    (-136.21, 32.356, 35),
    (-136.21, -32.356, 35),
    (-134.139, -40.084, 35),
    (-101.783, -96.126, 35),
    (-96.126, -101.783, 35),
    (-40.084, -134.139, 35),
    (-32.356, -136.21, 35),
    (32.356, -136.21, 35),
    (40.084, -134.139, 35),
    (96.126, -101.783, 35),
    (101.783, -96.126, 35),
    (134.139, -40.084, 35),
    (136.21, -32.356, 35),
    (136.21, 32.356, 35),
    (134.139, 40.084, 35),
    (101.783, 96.126, 35),
    (96.126, 101.783, 35),
    (40.084, 134.139, 35),
    (32.356, 136.21, 35),
    (-40.084, 134.139, 35),
    (-32.356, 136.21, 35),
]))
fillet.Radius = 5
doc.recompute()

chamfer = body.newObject("PartDesign::Chamfer", "Chamfer")
chamfer.Base = (fillet, edges_at(fillet, [
    (74.971, 129.854, 100),
    (106.026, 106.026, 0),
    (129.854, 74.971, 100),
    (144.834, 38.808, 0),
    (149.943, 0, 100),
    (144.834, -38.808, 0),
    (129.854, -74.971, 100),
    (106.026, -106.026, 0),
    (74.971, -129.854, 100),
    (38.808, -144.834, 0),
    (0, -149.943, 100),
    (-38.808, -144.834, 0),
    (-74.971, -129.854, 100),
    (-106.026, -106.026, 0),
    (-129.854, -74.971, 100),
    (-144.834, -38.808, 0),
    (-149.943, 0, 100),
    (-129.854, 74.971, 100),
    (-74.971, 129.854, 100),
    (0, 149.943, 100),
    (-144.834, 38.808, 0),
    (-106.026, 106.026, 0),
    (-38.808, 144.834, 0),
    (38.808, 144.834, 0),
]))
chamfer.Size = 10

sketch9 = body.newObject("Sketcher::SketchObject", "Sketch008")
sketch9.AttachmentSupport = (doc.getObject("XY_Plane"), [""])
sketch9.MapMode = "FlatFace"
sketch9.addGeometry([
    Part.LineSegment(App.Vector(-25.926749, 162.950311, 0), App.Vector(0, 0, 0)),
    Part.LineSegment(App.Vector(0, 0, 0), App.Vector(128.155734, 103.928378, 0)),
    Part.ArcOfCircle(Part.Circle(App.Vector(0, 0, 0), App.Vector(0, 0, 1), 165), math.radians(99.040455), math.radians(399.040455)),
], False)
sketch9.addConstraint([
    Sketcher.Constraint("Coincident", 0, 2, 1, 1),
    Sketcher.Constraint("Coincident", 1, 2, 2, 2),
    Sketcher.Constraint("Coincident", 2, 1, 0, 1),
    Sketcher.Constraint("Coincident", 2, 3, -1, 1),
    Sketcher.Constraint("Coincident", 0, 2, -1, 1),
    Sketcher.Constraint("Radius", 2, Q("165 mm")),
    Sketcher.Constraint("DistanceY", -1, 1, 1, 2, Q("103.928378 mm")),
    Sketcher.Constraint("DistanceX", 2, 1, -1, 1, Q("25.926749 mm")),
])
pocket5 = body.newObject("PartDesign::Pocket", "Pocket004")
pocket5.Profile = sketch9
pocket5.Type = "ThroughAll"
pocket5.Reversed = True
doc.recompute()

fillet2 = body.newObject("PartDesign::Fillet", "Fillet001")
fillet2.Base = (pocket5, edges_at(pocket5, [(81.554, 66.136, 50), (-16.499, 103.696, 50)]))
fillet2.Radius = 10

doc.recompute()
